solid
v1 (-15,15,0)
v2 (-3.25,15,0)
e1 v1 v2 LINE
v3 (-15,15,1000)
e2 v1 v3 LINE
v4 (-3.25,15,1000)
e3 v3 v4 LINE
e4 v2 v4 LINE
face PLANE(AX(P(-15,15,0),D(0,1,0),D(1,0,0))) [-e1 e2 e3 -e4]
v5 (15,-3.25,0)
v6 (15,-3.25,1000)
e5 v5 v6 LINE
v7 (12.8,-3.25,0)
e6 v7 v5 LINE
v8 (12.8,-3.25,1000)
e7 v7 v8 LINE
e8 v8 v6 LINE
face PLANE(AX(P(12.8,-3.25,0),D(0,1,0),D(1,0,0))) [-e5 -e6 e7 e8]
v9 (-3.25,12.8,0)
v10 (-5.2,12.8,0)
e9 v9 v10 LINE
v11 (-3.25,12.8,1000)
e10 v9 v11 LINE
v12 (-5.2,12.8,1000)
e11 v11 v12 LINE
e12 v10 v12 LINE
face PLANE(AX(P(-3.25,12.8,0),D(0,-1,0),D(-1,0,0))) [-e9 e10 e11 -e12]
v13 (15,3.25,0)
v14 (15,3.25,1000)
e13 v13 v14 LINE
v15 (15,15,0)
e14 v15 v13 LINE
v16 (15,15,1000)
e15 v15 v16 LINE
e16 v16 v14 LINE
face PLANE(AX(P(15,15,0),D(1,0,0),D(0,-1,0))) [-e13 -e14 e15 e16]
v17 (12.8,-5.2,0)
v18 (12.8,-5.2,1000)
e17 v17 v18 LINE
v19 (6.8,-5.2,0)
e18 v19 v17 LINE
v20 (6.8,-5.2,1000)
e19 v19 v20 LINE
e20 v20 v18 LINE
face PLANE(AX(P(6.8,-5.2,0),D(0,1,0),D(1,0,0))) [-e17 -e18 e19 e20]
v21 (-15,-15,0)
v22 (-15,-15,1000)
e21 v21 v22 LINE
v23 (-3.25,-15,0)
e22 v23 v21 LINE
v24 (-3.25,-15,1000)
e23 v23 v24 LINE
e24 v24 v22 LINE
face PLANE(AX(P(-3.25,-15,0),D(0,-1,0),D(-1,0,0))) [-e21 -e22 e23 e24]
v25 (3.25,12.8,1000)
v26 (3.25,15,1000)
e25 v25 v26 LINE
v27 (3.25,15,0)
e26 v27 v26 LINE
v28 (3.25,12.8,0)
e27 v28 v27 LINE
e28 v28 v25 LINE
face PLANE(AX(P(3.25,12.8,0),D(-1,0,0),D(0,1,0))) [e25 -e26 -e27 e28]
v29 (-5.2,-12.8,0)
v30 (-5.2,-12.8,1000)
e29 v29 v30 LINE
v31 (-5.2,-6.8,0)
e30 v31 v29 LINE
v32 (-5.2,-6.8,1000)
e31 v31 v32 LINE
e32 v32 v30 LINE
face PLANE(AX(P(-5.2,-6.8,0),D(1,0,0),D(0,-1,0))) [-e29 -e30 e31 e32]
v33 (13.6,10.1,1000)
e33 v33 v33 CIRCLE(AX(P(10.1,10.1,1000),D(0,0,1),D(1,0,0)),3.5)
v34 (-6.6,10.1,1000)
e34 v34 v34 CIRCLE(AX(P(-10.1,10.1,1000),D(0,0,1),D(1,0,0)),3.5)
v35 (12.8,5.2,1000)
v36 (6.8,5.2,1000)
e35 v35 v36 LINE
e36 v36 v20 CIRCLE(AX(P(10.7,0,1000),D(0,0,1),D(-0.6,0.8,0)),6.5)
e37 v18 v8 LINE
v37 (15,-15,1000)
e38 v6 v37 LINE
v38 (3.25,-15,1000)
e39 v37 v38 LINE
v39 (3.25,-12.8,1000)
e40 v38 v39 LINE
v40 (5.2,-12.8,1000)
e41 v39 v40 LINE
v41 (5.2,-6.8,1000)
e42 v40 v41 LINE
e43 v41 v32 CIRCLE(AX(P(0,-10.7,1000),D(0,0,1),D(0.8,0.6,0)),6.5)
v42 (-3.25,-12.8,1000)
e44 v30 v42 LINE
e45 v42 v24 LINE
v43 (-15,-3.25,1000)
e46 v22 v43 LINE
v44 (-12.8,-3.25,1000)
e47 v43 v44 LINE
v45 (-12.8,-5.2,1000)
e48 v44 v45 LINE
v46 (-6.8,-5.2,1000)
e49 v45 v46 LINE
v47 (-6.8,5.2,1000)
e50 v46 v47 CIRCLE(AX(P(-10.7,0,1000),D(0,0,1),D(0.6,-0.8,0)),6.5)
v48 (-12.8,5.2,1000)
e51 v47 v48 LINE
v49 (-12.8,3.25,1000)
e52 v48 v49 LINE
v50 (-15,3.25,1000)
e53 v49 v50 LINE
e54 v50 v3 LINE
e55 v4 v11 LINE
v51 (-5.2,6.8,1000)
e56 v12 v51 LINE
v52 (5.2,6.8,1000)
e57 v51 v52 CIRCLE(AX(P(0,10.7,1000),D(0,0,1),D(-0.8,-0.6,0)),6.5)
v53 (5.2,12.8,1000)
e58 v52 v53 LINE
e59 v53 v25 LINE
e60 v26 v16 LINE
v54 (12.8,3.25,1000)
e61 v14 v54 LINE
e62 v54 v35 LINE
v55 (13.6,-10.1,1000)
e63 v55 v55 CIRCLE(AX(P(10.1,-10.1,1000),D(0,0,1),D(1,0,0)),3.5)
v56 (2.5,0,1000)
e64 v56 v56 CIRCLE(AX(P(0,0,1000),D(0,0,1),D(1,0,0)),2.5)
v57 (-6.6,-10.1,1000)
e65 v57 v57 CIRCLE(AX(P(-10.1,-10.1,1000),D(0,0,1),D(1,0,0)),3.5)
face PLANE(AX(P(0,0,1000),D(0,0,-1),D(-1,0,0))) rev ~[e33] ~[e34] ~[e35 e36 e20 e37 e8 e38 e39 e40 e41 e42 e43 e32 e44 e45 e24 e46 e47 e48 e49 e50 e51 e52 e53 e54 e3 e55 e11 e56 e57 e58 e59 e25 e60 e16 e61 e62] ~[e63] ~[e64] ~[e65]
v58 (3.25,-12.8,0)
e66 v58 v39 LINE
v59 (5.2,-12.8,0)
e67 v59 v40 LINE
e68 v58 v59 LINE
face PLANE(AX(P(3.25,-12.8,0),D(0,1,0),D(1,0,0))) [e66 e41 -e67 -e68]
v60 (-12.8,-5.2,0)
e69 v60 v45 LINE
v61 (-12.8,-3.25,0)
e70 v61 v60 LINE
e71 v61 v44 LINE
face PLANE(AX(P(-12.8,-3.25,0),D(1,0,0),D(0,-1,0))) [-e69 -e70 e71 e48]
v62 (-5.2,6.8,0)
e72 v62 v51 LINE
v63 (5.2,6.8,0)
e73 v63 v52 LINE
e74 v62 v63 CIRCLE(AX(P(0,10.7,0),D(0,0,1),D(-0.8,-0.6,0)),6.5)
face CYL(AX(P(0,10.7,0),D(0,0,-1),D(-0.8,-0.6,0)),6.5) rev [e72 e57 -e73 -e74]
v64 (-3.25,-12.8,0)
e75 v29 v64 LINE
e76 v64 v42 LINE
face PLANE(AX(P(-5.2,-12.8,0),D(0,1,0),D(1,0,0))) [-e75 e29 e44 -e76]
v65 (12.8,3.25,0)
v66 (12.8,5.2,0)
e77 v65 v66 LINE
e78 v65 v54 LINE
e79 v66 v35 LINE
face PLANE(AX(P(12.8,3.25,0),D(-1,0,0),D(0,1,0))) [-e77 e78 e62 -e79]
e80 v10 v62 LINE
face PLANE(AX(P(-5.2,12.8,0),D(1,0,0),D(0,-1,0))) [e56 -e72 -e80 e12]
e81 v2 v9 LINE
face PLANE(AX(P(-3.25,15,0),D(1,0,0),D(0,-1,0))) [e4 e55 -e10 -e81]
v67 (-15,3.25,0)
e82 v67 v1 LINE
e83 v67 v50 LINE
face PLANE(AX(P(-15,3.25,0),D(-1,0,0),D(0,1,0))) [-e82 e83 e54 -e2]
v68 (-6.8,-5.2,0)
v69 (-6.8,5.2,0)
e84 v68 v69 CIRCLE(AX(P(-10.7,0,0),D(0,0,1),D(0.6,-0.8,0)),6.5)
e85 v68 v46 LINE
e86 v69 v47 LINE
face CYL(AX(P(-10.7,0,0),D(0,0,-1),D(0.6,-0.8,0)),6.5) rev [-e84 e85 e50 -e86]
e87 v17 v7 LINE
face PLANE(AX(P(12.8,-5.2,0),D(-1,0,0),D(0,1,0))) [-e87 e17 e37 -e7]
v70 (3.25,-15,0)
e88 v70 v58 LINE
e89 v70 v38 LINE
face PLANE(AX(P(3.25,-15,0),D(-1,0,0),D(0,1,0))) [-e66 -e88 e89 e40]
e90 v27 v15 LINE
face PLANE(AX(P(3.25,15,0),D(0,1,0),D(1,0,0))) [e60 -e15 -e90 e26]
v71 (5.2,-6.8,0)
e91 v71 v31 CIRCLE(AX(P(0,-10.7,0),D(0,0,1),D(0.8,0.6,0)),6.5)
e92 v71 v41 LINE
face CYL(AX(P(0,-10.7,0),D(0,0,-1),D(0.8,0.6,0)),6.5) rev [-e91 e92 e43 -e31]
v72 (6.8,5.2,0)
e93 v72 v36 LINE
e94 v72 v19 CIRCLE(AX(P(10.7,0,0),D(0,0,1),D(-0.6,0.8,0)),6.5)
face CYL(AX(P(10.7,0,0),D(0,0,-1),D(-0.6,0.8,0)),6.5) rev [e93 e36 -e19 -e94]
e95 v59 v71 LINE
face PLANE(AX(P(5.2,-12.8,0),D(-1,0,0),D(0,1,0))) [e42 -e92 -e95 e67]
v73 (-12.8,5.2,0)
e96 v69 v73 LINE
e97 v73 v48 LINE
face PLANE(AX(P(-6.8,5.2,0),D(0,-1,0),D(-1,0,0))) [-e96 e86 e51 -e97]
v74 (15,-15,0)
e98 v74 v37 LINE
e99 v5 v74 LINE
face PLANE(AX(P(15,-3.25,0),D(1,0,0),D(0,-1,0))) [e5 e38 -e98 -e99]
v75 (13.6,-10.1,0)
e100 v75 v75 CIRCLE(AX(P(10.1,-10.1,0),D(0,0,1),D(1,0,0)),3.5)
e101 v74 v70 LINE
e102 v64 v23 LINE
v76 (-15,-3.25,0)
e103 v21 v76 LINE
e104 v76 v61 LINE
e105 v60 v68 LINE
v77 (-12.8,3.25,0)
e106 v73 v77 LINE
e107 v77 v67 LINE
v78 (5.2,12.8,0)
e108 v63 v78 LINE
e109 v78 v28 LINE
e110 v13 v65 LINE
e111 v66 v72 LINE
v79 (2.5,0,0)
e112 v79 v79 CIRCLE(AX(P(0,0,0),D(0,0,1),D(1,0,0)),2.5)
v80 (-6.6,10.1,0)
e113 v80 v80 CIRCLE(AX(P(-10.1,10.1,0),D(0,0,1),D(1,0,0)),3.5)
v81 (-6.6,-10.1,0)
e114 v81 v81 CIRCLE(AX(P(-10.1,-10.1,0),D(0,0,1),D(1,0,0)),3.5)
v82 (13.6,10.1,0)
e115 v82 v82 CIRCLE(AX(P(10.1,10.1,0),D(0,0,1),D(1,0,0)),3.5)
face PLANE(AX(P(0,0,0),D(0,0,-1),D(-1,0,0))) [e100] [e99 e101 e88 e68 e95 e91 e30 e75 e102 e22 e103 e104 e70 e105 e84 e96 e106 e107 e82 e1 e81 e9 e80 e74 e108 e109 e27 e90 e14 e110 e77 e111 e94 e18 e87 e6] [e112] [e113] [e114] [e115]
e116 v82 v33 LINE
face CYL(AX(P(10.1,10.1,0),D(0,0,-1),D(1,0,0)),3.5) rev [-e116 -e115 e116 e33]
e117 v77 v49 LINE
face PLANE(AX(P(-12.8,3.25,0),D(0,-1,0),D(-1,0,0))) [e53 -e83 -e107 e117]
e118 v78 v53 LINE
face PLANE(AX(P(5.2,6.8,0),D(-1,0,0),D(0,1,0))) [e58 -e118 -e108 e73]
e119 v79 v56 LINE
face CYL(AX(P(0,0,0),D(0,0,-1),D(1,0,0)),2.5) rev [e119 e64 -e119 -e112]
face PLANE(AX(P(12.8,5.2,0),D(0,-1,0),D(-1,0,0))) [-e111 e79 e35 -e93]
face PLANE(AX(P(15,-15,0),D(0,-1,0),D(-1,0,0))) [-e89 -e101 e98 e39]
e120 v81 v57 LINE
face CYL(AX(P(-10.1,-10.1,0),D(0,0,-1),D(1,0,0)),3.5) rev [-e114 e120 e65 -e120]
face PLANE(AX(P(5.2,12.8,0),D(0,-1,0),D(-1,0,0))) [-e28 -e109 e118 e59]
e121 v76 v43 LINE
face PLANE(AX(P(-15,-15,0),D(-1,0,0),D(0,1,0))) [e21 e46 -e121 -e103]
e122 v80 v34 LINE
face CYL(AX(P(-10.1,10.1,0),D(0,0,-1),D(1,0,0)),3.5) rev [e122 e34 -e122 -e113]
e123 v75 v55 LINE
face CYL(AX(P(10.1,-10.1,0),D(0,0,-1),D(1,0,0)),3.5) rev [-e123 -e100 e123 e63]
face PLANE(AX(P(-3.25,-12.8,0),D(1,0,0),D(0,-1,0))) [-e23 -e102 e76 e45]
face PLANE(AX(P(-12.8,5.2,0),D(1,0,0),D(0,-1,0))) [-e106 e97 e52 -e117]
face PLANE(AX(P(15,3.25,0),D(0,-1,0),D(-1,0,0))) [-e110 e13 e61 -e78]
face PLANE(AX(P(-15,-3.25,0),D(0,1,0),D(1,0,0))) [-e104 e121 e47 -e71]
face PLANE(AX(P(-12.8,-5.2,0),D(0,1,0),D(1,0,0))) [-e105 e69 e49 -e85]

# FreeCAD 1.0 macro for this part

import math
import FreeCAD as App
import Part
import Sketcher
Q = App.Units.Quantity

doc = App.newDocument("Part")
body = doc.addObject("PartDesign::Body", "Body")

# Sketch on XY plane
sketch1 = doc.addObject("Sketcher::SketchObject", "Sketch")
body.addObject(sketch1)
sketch1.AttachmentSupport = (doc.XY_Plane, [""])
sketch1.MapMode = "FlatFace"
sketch1.addGeometry(Part.LineSegment(App.Vector(-3.25, 15, 0), App.Vector(-15, 15, 0)), False)
sketch1.addGeometry(Part.LineSegment(App.Vector(-15, 15, 0), App.Vector(-15, 3.25, 0)), False)
sketch1.addGeometry(Part.LineSegment(App.Vector(-15, 3.25, 0), App.Vector(-12.8, 3.25, 0)), False)
sketch1.addGeometry(Part.LineSegment(App.Vector(-12.8, 3.25, 0), App.Vector(-12.8, 5.2, 0)), False)
sketch1.addGeometry(Part.LineSegment(App.Vector(-12.8, 5.2, 0), App.Vector(-6.8, 5.2, 0)), False)
sketch1.addGeometry(Part.ArcOfCircle(Part.Circle(App.Vector(-10.7, 0, 0), App.Vector(0, 0, 1), 6.5), math.radians(-53.130102), math.radians(53.130102)), False)
sketch1.addGeometry(Part.LineSegment(App.Vector(-6.8, -5.2, 0), App.Vector(-12.8, -5.2, 0)), False)
sketch1.addGeometry(Part.LineSegment(App.Vector(-12.8, -5.2, 0), App.Vector(-12.8, -3.25, 0)), False)
sketch1.addGeometry(Part.LineSegment(App.Vector(-12.8, -3.25, 0), App.Vector(-15, -3.25, 0)), False)
sketch1.addGeometry(Part.LineSegment(App.Vector(-15, -3.25, 0), App.Vector(-15, -15, 0)), False)
sketch1.addGeometry(Part.LineSegment(App.Vector(-15, -15, 0), App.Vector(-3.25, -15, 0)), False)
sketch1.addGeometry(Part.LineSegment(App.Vector(-3.25, -15, 0), App.Vector(-3.25, -12.8, 0)), False)
sketch1.addGeometry(Part.LineSegment(App.Vector(-3.25, -12.8, 0), App.Vector(-5.2, -12.8, 0)), False)
sketch1.addGeometry(Part.LineSegment(App.Vector(-5.2, -12.8, 0), App.Vector(-5.2, -6.8, 0)), False)
sketch1.addGeometry(Part.ArcOfCircle(Part.Circle(App.Vector(0, -10.7, 0), App.Vector(0, 0, 1), 6.5), math.radians(36.869898), math.radians(143.130102)), False)
sketch1.addGeometry(Part.LineSegment(App.Vector(5.2, -6.8, 0), App.Vector(5.2, -12.8, 0)), False)
sketch1.addGeometry(Part.LineSegment(App.Vector(5.2, -12.8, 0), App.Vector(3.25, -12.8, 0)), False)
sketch1.addGeometry(Part.LineSegment(App.Vector(3.25, -12.8, 0), App.Vector(3.25, -15, 0)), False)
sketch1.addGeometry(Part.LineSegment(App.Vector(3.25, -15, 0), App.Vector(15, -15, 0)), False)
sketch1.addGeometry(Part.LineSegment(App.Vector(15, -15, 0), App.Vector(15, -3.25, 0)), False)
sketch1.addGeometry(Part.LineSegment(App.Vector(15, -3.25, 0), App.Vector(12.8, -3.25, 0)), False)
sketch1.addGeometry(Part.LineSegment(App.Vector(12.8, -3.25, 0), App.Vector(12.8, -5.2, 0)), False)
sketch1.addGeometry(Part.LineSegment(App.Vector(12.8, -5.2, 0), App.Vector(6.8, -5.2, 0)), False)
sketch1.addGeometry(Part.ArcOfCircle(Part.Circle(App.Vector(10.7, 0, 0), App.Vector(0, 0, 1), 6.5), math.radians(126.869898), math.radians(233.130102)), False)
sketch1.addGeometry(Part.LineSegment(App.Vector(6.8, 5.2, 0), App.Vector(12.8, 5.2, 0)), False)
sketch1.addGeometry(Part.LineSegment(App.Vector(12.8, 5.2, 0), App.Vector(12.8, 3.25, 0)), False)
sketch1.addGeometry(Part.LineSegment(App.Vector(12.8, 3.25, 0), App.Vector(15, 3.25, 0)), False)
sketch1.addGeometry(Part.LineSegment(App.Vector(15, 3.25, 0), App.Vector(15, 15, 0)), False)
sketch1.addGeometry(Part.LineSegment(App.Vector(15, 15, 0), App.Vector(3.25, 15, 0)), False)
sketch1.addGeometry(Part.LineSegment(App.Vector(3.25, 15, 0), App.Vector(3.25, 12.8, 0)), False)
sketch1.addGeometry(Part.LineSegment(App.Vector(3.25, 12.8, 0), App.Vector(5.2, 12.8, 0)), False)
sketch1.addGeometry(Part.LineSegment(App.Vector(5.2, 12.8, 0), App.Vector(5.2, 6.8, 0)), False)
sketch1.addGeometry(Part.ArcOfCircle(Part.Circle(App.Vector(0, 10.7, 0), App.Vector(0, 0, 1), 6.5), math.radians(-143.130102), math.radians(-36.869898)), False)
sketch1.addGeometry(Part.LineSegment(App.Vector(-5.2, 6.8, 0), App.Vector(-5.2, 12.8, 0)), False)
sketch1.addGeometry(Part.LineSegment(App.Vector(-5.2, 12.8, 0), App.Vector(-3.25, 12.8, 0)), False)
sketch1.addGeometry(Part.LineSegment(App.Vector(-3.25, 12.8, 0), App.Vector(-3.25, 15, 0)), False)
sketch1.addGeometry(Part.Circle(App.Vector(10.1, -10.1, 0), App.Vector(0, 0, 1), 3.5), False)
sketch1.addGeometry(Part.Circle(App.Vector(-10.1, -10.1, 0), App.Vector(0, 0, 1), 3.5), False)
sketch1.addGeometry(Part.Circle(App.Vector(10.1, 10.1, 0), App.Vector(0, 0, 1), 3.5), False)
sketch1.addGeometry(Part.Circle(App.Vector(0, 0, 0), App.Vector(0, 0, 1), 2.5), False)
sketch1.addGeometry(Part.Circle(App.Vector(-10.1, 10.1, 0), App.Vector(0, 0, 1), 3.5), False)
sketch1.addConstraint(Sketcher.Constraint("Coincident", 0, 2, 1, 1))
sketch1.addConstraint(Sketcher.Constraint("Coincident", 1, 2, 2, 1))
sketch1.addConstraint(Sketcher.Constraint("Coincident", 2, 2, 3, 1))
sketch1.addConstraint(Sketcher.Constraint("Coincident", 3, 2, 4, 1))
sketch1.addConstraint(Sketcher.Constraint("Coincident", 4, 2, 5, 2))
sketch1.addConstraint(Sketcher.Constraint("Coincident", 5, 1, 6, 1))
sketch1.addConstraint(Sketcher.Constraint("Coincident", 6, 2, 7, 1))
sketch1.addConstraint(Sketcher.Constraint("Coincident", 7, 2, 8, 1))
sketch1.addConstraint(Sketcher.Constraint("Coincident", 8, 2, 9, 1))
sketch1.addConstraint(Sketcher.Constraint("Coincident", 9, 2, 10, 1))
sketch1.addConstraint(Sketcher.Constraint("Coincident", 10, 2, 11, 1))
sketch1.addConstraint(Sketcher.Constraint("Coincident", 11, 2, 12, 1))
sketch1.addConstraint(Sketcher.Constraint("Coincident", 12, 2, 13, 1))
sketch1.addConstraint(Sketcher.Constraint("Coincident", 13, 2, 14, 2))
sketch1.addConstraint(Sketcher.Constraint("Coincident", 14, 1, 15, 1))
sketch1.addConstraint(Sketcher.Constraint("Coincident", 15, 2, 16, 1))
sketch1.addConstraint(Sketcher.Constraint("Coincident", 16, 2, 17, 1))
sketch1.addConstraint(Sketcher.Constraint("Coincident", 17, 2, 18, 1))
sketch1.addConstraint(Sketcher.Constraint("Coincident", 18, 2, 19, 1))
sketch1.addConstraint(Sketcher.Constraint("Coincident", 19, 2, 20, 1))
sketch1.addConstraint(Sketcher.Constraint("Coincident", 20, 2, 21, 1))
sketch1.addConstraint(Sketcher.Constraint("Coincident", 21, 2, 22, 1))
sketch1.addConstraint(Sketcher.Constraint("Coincident", 22, 2, 23, 2))
sketch1.addConstraint(Sketcher.Constraint("Coincident", 23, 1, 24, 1))
sketch1.addConstraint(Sketcher.Constraint("Coincident", 24, 2, 25, 1))
sketch1.addConstraint(Sketcher.Constraint("Coincident", 25, 2, 26, 1))
sketch1.addConstraint(Sketcher.Constraint("Coincident", 26, 2, 27, 1))
sketch1.addConstraint(Sketcher.Constraint("Coincident", 27, 2, 28, 1))
sketch1.addConstraint(Sketcher.Constraint("Coincident", 28, 2, 29, 1))
sketch1.addConstraint(Sketcher.Constraint("Coincident", 29, 2, 30, 1))
sketch1.addConstraint(Sketcher.Constraint("Coincident", 30, 2, 31, 1))
sketch1.addConstraint(Sketcher.Constraint("Coincident", 31, 2, 32, 2))
sketch1.addConstraint(Sketcher.Constraint("Coincident", 32, 1, 33, 1))
sketch1.addConstraint(Sketcher.Constraint("Coincident", 33, 2, 34, 1))
sketch1.addConstraint(Sketcher.Constraint("Coincident", 34, 2, 35, 1))
sketch1.addConstraint(Sketcher.Constraint("Coincident", 35, 2, 0, 1))
sketch1.addConstraint(Sketcher.Constraint("Horizontal", 0))
sketch1.addConstraint(Sketcher.Constraint("Vertical", 1))
sketch1.addConstraint(Sketcher.Constraint("Horizontal", 2))
sketch1.addConstraint(Sketcher.Constraint("Vertical", 3))
sketch1.addConstraint(Sketcher.Constraint("Horizontal", 4))
sketch1.addConstraint(Sketcher.Constraint("Horizontal", 6))
sketch1.addConstraint(Sketcher.Constraint("Vertical", 7))
sketch1.addConstraint(Sketcher.Constraint("Horizontal", 8))
sketch1.addConstraint(Sketcher.Constraint("Vertical", 9))
sketch1.addConstraint(Sketcher.Constraint("Horizontal", 10))
sketch1.addConstraint(Sketcher.Constraint("Vertical", 11))
sketch1.addConstraint(Sketcher.Constraint("Horizontal", 12))
sketch1.addConstraint(Sketcher.Constraint("Vertical", 13))
sketch1.addConstraint(Sketcher.Constraint("Vertical", 15))
sketch1.addConstraint(Sketcher.Constraint("Horizontal", 16))
sketch1.addConstraint(Sketcher.Constraint("Vertical", 17))
sketch1.addConstraint(Sketcher.Constraint("Horizontal", 18))
sketch1.addConstraint(Sketcher.Constraint("Vertical", 19))
sketch1.addConstraint(Sketcher.Constraint("Horizontal", 20))
sketch1.addConstraint(Sketcher.Constraint("Vertical", 21))
sketch1.addConstraint(Sketcher.Constraint("Horizontal", 22))
sketch1.addConstraint(Sketcher.Constraint("Horizontal", 24))
sketch1.addConstraint(Sketcher.Constraint("Vertical", 25))
sketch1.addConstraint(Sketcher.Constraint("Horizontal", 26))
sketch1.addConstraint(Sketcher.Constraint("Vertical", 27))
sketch1.addConstraint(Sketcher.Constraint("Horizontal", 28))
sketch1.addConstraint(Sketcher.Constraint("Vertical", 29))
sketch1.addConstraint(Sketcher.Constraint("Horizontal", 30))
sketch1.addConstraint(Sketcher.Constraint("Vertical", 31))
sketch1.addConstraint(Sketcher.Constraint("Vertical", 33))
sketch1.addConstraint(Sketcher.Constraint("Horizontal", 34))
sketch1.addConstraint(Sketcher.Constraint("Vertical", 35))
sketch1.addConstraint(Sketcher.Constraint("Coincident", 39, 3, -1, 1))
sketch1.addConstraint(Sketcher.Constraint("Equal", 5, 14))
sketch1.addConstraint(Sketcher.Constraint("Equal", 14, 23))
sketch1.addConstraint(Sketcher.Constraint("Equal", 23, 32))
sketch1.addConstraint(Sketcher.Constraint("Equal", 36, 37))
sketch1.addConstraint(Sketcher.Constraint("Equal", 37, 38))
sketch1.addConstraint(Sketcher.Constraint("Equal", 38, 40))
sketch1.addConstraint(Sketcher.Constraint("Symmetric", 5, 3, 23, 3, -1, 1))
sketch1.addConstraint(Sketcher.Constraint("Symmetric", 14, 3, 32, 3, -1, 1))
sketch1.addConstraint(Sketcher.Constraint("Symmetric", 37, 3, 38, 3, -1, 1))
sketch1.addConstraint(Sketcher.Constraint("Symmetric", 36, 3, 40, 3, -1, 1))
sketch1.addConstraint(Sketcher.Constraint("Symmetric", 0, 2, 18, 2, -1, 1))
sketch1.addConstraint(Sketcher.Constraint("Symmetric", 2, 2, 20, 2, -1, 1))
sketch1.addConstraint(Sketcher.Constraint("Symmetric", 6, 2, 24, 2, -1, 1))
sketch1.addConstraint(Sketcher.Constraint("Symmetric", 8, 2, 26, 2, -1, 1))
sketch1.addConstraint(Sketcher.Constraint("Symmetric", 10, 2, 28, 2, -1, 1))
sketch1.addConstraint(Sketcher.Constraint("Symmetric", 12, 2, 30, 2, -1, 1))
sketch1.addConstraint(Sketcher.Constraint("Symmetric", 15, 2, 33, 2, -1, 1))
sketch1.addConstraint(Sketcher.Constraint("Symmetric", 36, 3, 37, 3, -2))
sketch1.addConstraint(Sketcher.Constraint("Symmetric", 13, 2, 14, 1, -2))
sketch1.addConstraint(Sketcher.Constraint("Symmetric", 11, 2, 16, 2, -2))
sketch1.addConstraint(Sketcher.Constraint("Symmetric", 9, 2, 18, 2, -2))
sketch1.addConstraint(Sketcher.Constraint("Symmetric", 7, 2, 20, 2, -2))
sketch1.addConstraint(Sketcher.Constraint("Symmetric", 5, 1, 22, 2, -2))
sketch1.addConstraint(Sketcher.Constraint("Horizontal", 4, 2, 23, 1))
sketch1.addConstraint(Sketcher.Constraint("Vertical", 11, 2, 34, 2))
sketch1.addConstraint(Sketcher.Constraint("Equal", 28, 1))
sketch1.addConstraint(Sketcher.Constraint("Equal", 34, 3))
sketch1.addConstraint(Sketcher.Constraint("Equal", 26, 11))
sketch1.addConstraint(Sketcher.Constraint("Equal", 24, 13))
sketch1.addConstraint(Sketcher.Constraint("Diameter", 36, Q("7 mm")))
sketch1.addConstraint(Sketcher.Constraint("Diameter", 39, Q("5 mm")))
sketch1.addConstraint(Sketcher.Constraint("Radius", 5, Q("6.5 mm")))
sketch1.addConstraint(Sketcher.Constraint("DistanceX", 4, 1, 4, 2, Q("6 mm")))
sketch1.addConstraint(Sketcher.Constraint("DistanceX", 2, 1, 2, 2, Q("2.2 mm")))
sketch1.addConstraint(Sketcher.Constraint("DistanceX", 0, 2, -1, 1, Q("15 mm")))
sketch1.addConstraint(Sketcher.Constraint("DistanceY", -1, 1, 0, 2, Q("15 mm")))
sketch1.addConstraint(Sketcher.Constraint("DistanceX", 0, 2, 0, 1, Q("11.75 mm")))
sketch1.addConstraint(Sketcher.Constraint("DistanceX", 12, 2, 12, 1, Q("1.95 mm")))
sketch1.addConstraint(Sketcher.Constraint("DistanceX", -1, 1, 36, 3, Q("10.1 mm")))
sketch1.addConstraint(Sketcher.Constraint("DistanceY", 36, 3, -1, 1, Q("10.1 mm")))
pad1 = doc.addObject("PartDesign::Pad", "Pad")
body.addObject(pad1)
pad1.Profile = sketch1
pad1.Length = 1000

doc.recompute()
